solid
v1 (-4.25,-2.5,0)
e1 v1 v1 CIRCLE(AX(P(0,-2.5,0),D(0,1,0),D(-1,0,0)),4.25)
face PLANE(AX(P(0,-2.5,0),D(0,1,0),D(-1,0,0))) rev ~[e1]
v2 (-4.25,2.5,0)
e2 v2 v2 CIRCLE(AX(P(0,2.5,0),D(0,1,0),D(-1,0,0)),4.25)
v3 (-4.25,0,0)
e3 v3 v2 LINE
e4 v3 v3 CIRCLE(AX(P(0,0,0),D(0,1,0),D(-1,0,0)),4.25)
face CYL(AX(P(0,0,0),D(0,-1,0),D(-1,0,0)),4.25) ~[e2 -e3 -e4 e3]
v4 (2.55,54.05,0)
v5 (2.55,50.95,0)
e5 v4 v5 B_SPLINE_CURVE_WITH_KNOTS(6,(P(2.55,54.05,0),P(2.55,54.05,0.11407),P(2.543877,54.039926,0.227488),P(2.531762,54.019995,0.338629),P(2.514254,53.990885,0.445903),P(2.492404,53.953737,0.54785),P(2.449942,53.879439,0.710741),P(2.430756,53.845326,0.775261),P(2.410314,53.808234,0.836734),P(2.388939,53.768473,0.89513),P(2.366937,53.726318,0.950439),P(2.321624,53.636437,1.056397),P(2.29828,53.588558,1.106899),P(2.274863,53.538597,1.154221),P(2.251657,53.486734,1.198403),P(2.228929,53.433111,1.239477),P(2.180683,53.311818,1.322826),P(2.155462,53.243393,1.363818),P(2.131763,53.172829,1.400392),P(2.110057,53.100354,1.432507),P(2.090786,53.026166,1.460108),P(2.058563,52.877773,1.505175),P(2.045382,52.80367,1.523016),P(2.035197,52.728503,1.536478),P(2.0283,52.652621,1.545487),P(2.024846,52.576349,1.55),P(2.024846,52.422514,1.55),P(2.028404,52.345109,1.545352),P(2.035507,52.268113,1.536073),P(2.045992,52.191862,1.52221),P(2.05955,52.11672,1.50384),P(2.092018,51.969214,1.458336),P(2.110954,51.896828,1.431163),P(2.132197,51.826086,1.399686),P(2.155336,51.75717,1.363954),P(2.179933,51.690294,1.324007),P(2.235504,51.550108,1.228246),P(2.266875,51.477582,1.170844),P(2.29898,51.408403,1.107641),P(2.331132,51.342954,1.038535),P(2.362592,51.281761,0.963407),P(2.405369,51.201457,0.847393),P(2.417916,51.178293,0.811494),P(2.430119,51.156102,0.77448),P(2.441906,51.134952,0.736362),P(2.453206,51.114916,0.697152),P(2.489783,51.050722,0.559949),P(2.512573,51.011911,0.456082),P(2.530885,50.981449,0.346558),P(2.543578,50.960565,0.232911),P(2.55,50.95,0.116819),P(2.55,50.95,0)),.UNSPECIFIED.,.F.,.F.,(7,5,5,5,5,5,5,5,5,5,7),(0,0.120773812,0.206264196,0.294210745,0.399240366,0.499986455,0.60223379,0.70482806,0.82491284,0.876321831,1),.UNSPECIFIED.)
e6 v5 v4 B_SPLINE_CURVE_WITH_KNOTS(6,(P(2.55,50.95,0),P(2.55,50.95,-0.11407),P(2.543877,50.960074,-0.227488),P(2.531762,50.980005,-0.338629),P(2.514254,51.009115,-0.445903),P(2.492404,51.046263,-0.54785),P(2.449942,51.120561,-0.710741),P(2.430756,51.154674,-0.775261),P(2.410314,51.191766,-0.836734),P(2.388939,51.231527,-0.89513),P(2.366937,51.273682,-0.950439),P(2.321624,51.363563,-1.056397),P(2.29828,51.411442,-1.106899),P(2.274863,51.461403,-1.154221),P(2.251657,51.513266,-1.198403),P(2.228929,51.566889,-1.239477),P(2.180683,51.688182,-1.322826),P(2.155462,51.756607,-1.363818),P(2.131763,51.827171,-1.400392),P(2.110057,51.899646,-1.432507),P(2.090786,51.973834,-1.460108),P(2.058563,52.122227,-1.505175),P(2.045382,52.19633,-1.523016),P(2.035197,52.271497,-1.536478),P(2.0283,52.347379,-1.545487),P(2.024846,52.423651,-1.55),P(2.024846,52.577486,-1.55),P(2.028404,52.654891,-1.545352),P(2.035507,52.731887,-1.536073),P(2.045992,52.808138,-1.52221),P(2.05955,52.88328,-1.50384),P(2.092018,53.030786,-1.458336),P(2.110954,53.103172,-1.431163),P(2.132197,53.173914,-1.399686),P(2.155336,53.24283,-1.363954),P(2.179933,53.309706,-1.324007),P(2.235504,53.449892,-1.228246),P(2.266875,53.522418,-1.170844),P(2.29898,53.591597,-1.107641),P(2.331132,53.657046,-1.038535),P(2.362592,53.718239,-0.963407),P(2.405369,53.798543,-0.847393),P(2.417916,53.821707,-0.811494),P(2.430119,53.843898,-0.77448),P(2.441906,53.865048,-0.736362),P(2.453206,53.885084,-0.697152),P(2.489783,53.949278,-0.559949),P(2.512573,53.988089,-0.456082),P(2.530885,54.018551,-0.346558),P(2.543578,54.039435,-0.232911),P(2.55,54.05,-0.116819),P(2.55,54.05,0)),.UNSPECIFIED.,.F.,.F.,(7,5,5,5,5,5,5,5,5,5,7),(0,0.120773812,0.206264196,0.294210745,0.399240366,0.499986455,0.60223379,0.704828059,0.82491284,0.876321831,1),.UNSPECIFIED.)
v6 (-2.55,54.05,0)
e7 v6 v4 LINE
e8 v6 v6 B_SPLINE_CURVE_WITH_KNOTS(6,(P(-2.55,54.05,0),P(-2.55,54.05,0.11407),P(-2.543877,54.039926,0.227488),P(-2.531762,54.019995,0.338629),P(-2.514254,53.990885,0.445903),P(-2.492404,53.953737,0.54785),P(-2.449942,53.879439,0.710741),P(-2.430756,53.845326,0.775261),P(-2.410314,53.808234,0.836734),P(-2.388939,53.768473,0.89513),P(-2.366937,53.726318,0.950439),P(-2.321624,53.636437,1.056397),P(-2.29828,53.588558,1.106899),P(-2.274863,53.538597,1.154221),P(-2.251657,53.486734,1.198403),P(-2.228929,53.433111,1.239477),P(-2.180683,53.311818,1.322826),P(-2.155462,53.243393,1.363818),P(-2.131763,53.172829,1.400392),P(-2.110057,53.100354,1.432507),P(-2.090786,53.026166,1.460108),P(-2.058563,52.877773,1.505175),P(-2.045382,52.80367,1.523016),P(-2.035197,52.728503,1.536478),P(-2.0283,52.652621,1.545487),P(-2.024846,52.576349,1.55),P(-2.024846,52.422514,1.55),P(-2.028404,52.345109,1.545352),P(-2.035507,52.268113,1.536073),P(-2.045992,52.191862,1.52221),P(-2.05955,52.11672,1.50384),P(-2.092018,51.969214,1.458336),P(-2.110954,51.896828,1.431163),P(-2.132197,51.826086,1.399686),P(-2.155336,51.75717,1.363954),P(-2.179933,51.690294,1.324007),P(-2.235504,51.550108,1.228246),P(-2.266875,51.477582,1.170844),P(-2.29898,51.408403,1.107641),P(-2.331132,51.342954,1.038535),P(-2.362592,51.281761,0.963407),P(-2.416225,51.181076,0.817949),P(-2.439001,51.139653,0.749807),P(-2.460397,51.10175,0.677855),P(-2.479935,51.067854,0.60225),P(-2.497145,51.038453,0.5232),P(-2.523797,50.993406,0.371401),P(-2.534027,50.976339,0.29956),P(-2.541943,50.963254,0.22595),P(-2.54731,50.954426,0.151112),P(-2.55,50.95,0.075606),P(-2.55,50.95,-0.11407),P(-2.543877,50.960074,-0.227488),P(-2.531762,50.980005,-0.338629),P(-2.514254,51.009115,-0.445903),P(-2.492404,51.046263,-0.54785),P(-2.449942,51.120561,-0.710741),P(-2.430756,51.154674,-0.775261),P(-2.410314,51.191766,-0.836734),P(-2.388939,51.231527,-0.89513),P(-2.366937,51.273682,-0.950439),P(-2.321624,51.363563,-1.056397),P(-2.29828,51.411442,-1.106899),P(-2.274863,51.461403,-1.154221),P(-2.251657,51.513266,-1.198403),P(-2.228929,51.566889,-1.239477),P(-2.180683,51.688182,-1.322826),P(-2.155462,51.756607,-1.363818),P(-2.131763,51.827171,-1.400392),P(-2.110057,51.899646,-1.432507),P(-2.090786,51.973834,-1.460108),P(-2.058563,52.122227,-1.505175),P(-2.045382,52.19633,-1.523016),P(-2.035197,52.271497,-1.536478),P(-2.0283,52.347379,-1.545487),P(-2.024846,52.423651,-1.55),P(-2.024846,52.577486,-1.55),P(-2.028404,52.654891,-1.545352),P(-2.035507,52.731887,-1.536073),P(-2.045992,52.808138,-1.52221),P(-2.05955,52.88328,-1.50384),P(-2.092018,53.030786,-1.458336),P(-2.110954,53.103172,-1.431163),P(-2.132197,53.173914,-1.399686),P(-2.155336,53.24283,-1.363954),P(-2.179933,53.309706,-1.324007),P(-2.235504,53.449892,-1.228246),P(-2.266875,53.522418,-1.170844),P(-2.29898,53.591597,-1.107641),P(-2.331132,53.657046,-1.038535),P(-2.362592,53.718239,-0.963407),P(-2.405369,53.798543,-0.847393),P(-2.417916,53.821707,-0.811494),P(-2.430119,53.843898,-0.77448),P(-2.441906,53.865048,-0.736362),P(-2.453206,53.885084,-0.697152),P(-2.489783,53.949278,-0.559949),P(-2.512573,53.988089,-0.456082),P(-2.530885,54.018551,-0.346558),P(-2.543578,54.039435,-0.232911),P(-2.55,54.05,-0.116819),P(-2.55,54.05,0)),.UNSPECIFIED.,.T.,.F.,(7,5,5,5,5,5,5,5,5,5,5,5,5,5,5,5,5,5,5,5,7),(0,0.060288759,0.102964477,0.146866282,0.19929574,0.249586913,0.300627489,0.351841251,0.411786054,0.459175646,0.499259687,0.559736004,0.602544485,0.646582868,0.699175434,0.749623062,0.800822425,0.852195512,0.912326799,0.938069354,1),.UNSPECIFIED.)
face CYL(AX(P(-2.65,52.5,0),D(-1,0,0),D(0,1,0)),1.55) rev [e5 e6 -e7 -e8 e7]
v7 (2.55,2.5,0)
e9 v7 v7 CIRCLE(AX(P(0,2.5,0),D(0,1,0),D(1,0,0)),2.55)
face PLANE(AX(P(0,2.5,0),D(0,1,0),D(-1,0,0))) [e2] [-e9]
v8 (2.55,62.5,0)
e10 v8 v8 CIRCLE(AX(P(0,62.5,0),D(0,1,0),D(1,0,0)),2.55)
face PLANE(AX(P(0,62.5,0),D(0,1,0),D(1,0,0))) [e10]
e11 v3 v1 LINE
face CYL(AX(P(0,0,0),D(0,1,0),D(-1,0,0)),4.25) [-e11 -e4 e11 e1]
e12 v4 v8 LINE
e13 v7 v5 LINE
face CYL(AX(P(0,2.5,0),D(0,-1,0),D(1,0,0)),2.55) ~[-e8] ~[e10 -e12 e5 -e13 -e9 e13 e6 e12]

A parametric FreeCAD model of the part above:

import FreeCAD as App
import Part
import Sketcher

doc = App.newDocument("Part")
body = doc.addObject("PartDesign::Body", "Body")

sketch1 = body.newObject("Sketcher::SketchObject", "Sketch")
sketch1.AttachmentSupport = (doc.getObject("XZ_Plane"), [""])
sketch1.MapMode = "FlatFace"
sketch1.addGeometry(Part.Circle(App.Vector(0, 0, 0), App.Vector(0, 0, 1), 4.2), False)
sketch1.addConstraint([
    Sketcher.Constraint("Coincident", 0, 3, -1, 1),
    Sketcher.Constraint("Diameter", 0, 8.5),
])
pad1 = body.newObject("PartDesign::Pad", "Pad")
pad1.Profile = sketch1
pad1.Length = 5
pad1.Midplane = True

sketch2 = body.newObject("Sketcher::SketchObject", "Sketch001")
sketch2.AttachmentSupport = (doc.getObject("XZ_Plane"), [""])
sketch2.MapMode = "FlatFace"
sketch2.AttachmentOffset = App.Placement(App.Vector(0, 0, -2.5), App.Rotation())
sketch2.addGeometry(Part.Circle(App.Vector(0, 0, 0), App.Vector(0, 0, 1), 2.5), False)
sketch2.addConstraint([
    Sketcher.Constraint("Coincident", 0, 3, -1, 1),
    Sketcher.Constraint("Diameter", 0, 5.1),
])
pad2 = body.newObject("PartDesign::Pad", "Pad001")
pad2.Profile = sketch2
pad2.Length = 60
pad2.Reversed = True

sketch3 = body.newObject("Sketcher::SketchObject", "Sketch002")
sketch3.AttachmentSupport = (doc.getObject("YZ_Plane"), [""])
sketch3.MapMode = "FlatFace"
sketch3.AttachmentOffset = App.Placement(App.Vector(0, 0, -2.65), App.Rotation())
sketch3.addGeometry(Part.Circle(App.Vector(52.5, 0, 0), App.Vector(0, 0, 1), 1.6), False)
sketch3.addConstraint([
    Sketcher.Constraint("PointOnObject", 0, 3, -1),
    Sketcher.Constraint("Diameter", 0, 3.1),
    Sketcher.Constraint("DistanceX", -1, 1, 0, 3, 52.5),
])
pocket1 = body.newObject("PartDesign::Pocket", "Pocket")
pocket1.Profile = sketch3
pocket1.Length = 50
pocket1.Reversed = True

doc.recompute()
